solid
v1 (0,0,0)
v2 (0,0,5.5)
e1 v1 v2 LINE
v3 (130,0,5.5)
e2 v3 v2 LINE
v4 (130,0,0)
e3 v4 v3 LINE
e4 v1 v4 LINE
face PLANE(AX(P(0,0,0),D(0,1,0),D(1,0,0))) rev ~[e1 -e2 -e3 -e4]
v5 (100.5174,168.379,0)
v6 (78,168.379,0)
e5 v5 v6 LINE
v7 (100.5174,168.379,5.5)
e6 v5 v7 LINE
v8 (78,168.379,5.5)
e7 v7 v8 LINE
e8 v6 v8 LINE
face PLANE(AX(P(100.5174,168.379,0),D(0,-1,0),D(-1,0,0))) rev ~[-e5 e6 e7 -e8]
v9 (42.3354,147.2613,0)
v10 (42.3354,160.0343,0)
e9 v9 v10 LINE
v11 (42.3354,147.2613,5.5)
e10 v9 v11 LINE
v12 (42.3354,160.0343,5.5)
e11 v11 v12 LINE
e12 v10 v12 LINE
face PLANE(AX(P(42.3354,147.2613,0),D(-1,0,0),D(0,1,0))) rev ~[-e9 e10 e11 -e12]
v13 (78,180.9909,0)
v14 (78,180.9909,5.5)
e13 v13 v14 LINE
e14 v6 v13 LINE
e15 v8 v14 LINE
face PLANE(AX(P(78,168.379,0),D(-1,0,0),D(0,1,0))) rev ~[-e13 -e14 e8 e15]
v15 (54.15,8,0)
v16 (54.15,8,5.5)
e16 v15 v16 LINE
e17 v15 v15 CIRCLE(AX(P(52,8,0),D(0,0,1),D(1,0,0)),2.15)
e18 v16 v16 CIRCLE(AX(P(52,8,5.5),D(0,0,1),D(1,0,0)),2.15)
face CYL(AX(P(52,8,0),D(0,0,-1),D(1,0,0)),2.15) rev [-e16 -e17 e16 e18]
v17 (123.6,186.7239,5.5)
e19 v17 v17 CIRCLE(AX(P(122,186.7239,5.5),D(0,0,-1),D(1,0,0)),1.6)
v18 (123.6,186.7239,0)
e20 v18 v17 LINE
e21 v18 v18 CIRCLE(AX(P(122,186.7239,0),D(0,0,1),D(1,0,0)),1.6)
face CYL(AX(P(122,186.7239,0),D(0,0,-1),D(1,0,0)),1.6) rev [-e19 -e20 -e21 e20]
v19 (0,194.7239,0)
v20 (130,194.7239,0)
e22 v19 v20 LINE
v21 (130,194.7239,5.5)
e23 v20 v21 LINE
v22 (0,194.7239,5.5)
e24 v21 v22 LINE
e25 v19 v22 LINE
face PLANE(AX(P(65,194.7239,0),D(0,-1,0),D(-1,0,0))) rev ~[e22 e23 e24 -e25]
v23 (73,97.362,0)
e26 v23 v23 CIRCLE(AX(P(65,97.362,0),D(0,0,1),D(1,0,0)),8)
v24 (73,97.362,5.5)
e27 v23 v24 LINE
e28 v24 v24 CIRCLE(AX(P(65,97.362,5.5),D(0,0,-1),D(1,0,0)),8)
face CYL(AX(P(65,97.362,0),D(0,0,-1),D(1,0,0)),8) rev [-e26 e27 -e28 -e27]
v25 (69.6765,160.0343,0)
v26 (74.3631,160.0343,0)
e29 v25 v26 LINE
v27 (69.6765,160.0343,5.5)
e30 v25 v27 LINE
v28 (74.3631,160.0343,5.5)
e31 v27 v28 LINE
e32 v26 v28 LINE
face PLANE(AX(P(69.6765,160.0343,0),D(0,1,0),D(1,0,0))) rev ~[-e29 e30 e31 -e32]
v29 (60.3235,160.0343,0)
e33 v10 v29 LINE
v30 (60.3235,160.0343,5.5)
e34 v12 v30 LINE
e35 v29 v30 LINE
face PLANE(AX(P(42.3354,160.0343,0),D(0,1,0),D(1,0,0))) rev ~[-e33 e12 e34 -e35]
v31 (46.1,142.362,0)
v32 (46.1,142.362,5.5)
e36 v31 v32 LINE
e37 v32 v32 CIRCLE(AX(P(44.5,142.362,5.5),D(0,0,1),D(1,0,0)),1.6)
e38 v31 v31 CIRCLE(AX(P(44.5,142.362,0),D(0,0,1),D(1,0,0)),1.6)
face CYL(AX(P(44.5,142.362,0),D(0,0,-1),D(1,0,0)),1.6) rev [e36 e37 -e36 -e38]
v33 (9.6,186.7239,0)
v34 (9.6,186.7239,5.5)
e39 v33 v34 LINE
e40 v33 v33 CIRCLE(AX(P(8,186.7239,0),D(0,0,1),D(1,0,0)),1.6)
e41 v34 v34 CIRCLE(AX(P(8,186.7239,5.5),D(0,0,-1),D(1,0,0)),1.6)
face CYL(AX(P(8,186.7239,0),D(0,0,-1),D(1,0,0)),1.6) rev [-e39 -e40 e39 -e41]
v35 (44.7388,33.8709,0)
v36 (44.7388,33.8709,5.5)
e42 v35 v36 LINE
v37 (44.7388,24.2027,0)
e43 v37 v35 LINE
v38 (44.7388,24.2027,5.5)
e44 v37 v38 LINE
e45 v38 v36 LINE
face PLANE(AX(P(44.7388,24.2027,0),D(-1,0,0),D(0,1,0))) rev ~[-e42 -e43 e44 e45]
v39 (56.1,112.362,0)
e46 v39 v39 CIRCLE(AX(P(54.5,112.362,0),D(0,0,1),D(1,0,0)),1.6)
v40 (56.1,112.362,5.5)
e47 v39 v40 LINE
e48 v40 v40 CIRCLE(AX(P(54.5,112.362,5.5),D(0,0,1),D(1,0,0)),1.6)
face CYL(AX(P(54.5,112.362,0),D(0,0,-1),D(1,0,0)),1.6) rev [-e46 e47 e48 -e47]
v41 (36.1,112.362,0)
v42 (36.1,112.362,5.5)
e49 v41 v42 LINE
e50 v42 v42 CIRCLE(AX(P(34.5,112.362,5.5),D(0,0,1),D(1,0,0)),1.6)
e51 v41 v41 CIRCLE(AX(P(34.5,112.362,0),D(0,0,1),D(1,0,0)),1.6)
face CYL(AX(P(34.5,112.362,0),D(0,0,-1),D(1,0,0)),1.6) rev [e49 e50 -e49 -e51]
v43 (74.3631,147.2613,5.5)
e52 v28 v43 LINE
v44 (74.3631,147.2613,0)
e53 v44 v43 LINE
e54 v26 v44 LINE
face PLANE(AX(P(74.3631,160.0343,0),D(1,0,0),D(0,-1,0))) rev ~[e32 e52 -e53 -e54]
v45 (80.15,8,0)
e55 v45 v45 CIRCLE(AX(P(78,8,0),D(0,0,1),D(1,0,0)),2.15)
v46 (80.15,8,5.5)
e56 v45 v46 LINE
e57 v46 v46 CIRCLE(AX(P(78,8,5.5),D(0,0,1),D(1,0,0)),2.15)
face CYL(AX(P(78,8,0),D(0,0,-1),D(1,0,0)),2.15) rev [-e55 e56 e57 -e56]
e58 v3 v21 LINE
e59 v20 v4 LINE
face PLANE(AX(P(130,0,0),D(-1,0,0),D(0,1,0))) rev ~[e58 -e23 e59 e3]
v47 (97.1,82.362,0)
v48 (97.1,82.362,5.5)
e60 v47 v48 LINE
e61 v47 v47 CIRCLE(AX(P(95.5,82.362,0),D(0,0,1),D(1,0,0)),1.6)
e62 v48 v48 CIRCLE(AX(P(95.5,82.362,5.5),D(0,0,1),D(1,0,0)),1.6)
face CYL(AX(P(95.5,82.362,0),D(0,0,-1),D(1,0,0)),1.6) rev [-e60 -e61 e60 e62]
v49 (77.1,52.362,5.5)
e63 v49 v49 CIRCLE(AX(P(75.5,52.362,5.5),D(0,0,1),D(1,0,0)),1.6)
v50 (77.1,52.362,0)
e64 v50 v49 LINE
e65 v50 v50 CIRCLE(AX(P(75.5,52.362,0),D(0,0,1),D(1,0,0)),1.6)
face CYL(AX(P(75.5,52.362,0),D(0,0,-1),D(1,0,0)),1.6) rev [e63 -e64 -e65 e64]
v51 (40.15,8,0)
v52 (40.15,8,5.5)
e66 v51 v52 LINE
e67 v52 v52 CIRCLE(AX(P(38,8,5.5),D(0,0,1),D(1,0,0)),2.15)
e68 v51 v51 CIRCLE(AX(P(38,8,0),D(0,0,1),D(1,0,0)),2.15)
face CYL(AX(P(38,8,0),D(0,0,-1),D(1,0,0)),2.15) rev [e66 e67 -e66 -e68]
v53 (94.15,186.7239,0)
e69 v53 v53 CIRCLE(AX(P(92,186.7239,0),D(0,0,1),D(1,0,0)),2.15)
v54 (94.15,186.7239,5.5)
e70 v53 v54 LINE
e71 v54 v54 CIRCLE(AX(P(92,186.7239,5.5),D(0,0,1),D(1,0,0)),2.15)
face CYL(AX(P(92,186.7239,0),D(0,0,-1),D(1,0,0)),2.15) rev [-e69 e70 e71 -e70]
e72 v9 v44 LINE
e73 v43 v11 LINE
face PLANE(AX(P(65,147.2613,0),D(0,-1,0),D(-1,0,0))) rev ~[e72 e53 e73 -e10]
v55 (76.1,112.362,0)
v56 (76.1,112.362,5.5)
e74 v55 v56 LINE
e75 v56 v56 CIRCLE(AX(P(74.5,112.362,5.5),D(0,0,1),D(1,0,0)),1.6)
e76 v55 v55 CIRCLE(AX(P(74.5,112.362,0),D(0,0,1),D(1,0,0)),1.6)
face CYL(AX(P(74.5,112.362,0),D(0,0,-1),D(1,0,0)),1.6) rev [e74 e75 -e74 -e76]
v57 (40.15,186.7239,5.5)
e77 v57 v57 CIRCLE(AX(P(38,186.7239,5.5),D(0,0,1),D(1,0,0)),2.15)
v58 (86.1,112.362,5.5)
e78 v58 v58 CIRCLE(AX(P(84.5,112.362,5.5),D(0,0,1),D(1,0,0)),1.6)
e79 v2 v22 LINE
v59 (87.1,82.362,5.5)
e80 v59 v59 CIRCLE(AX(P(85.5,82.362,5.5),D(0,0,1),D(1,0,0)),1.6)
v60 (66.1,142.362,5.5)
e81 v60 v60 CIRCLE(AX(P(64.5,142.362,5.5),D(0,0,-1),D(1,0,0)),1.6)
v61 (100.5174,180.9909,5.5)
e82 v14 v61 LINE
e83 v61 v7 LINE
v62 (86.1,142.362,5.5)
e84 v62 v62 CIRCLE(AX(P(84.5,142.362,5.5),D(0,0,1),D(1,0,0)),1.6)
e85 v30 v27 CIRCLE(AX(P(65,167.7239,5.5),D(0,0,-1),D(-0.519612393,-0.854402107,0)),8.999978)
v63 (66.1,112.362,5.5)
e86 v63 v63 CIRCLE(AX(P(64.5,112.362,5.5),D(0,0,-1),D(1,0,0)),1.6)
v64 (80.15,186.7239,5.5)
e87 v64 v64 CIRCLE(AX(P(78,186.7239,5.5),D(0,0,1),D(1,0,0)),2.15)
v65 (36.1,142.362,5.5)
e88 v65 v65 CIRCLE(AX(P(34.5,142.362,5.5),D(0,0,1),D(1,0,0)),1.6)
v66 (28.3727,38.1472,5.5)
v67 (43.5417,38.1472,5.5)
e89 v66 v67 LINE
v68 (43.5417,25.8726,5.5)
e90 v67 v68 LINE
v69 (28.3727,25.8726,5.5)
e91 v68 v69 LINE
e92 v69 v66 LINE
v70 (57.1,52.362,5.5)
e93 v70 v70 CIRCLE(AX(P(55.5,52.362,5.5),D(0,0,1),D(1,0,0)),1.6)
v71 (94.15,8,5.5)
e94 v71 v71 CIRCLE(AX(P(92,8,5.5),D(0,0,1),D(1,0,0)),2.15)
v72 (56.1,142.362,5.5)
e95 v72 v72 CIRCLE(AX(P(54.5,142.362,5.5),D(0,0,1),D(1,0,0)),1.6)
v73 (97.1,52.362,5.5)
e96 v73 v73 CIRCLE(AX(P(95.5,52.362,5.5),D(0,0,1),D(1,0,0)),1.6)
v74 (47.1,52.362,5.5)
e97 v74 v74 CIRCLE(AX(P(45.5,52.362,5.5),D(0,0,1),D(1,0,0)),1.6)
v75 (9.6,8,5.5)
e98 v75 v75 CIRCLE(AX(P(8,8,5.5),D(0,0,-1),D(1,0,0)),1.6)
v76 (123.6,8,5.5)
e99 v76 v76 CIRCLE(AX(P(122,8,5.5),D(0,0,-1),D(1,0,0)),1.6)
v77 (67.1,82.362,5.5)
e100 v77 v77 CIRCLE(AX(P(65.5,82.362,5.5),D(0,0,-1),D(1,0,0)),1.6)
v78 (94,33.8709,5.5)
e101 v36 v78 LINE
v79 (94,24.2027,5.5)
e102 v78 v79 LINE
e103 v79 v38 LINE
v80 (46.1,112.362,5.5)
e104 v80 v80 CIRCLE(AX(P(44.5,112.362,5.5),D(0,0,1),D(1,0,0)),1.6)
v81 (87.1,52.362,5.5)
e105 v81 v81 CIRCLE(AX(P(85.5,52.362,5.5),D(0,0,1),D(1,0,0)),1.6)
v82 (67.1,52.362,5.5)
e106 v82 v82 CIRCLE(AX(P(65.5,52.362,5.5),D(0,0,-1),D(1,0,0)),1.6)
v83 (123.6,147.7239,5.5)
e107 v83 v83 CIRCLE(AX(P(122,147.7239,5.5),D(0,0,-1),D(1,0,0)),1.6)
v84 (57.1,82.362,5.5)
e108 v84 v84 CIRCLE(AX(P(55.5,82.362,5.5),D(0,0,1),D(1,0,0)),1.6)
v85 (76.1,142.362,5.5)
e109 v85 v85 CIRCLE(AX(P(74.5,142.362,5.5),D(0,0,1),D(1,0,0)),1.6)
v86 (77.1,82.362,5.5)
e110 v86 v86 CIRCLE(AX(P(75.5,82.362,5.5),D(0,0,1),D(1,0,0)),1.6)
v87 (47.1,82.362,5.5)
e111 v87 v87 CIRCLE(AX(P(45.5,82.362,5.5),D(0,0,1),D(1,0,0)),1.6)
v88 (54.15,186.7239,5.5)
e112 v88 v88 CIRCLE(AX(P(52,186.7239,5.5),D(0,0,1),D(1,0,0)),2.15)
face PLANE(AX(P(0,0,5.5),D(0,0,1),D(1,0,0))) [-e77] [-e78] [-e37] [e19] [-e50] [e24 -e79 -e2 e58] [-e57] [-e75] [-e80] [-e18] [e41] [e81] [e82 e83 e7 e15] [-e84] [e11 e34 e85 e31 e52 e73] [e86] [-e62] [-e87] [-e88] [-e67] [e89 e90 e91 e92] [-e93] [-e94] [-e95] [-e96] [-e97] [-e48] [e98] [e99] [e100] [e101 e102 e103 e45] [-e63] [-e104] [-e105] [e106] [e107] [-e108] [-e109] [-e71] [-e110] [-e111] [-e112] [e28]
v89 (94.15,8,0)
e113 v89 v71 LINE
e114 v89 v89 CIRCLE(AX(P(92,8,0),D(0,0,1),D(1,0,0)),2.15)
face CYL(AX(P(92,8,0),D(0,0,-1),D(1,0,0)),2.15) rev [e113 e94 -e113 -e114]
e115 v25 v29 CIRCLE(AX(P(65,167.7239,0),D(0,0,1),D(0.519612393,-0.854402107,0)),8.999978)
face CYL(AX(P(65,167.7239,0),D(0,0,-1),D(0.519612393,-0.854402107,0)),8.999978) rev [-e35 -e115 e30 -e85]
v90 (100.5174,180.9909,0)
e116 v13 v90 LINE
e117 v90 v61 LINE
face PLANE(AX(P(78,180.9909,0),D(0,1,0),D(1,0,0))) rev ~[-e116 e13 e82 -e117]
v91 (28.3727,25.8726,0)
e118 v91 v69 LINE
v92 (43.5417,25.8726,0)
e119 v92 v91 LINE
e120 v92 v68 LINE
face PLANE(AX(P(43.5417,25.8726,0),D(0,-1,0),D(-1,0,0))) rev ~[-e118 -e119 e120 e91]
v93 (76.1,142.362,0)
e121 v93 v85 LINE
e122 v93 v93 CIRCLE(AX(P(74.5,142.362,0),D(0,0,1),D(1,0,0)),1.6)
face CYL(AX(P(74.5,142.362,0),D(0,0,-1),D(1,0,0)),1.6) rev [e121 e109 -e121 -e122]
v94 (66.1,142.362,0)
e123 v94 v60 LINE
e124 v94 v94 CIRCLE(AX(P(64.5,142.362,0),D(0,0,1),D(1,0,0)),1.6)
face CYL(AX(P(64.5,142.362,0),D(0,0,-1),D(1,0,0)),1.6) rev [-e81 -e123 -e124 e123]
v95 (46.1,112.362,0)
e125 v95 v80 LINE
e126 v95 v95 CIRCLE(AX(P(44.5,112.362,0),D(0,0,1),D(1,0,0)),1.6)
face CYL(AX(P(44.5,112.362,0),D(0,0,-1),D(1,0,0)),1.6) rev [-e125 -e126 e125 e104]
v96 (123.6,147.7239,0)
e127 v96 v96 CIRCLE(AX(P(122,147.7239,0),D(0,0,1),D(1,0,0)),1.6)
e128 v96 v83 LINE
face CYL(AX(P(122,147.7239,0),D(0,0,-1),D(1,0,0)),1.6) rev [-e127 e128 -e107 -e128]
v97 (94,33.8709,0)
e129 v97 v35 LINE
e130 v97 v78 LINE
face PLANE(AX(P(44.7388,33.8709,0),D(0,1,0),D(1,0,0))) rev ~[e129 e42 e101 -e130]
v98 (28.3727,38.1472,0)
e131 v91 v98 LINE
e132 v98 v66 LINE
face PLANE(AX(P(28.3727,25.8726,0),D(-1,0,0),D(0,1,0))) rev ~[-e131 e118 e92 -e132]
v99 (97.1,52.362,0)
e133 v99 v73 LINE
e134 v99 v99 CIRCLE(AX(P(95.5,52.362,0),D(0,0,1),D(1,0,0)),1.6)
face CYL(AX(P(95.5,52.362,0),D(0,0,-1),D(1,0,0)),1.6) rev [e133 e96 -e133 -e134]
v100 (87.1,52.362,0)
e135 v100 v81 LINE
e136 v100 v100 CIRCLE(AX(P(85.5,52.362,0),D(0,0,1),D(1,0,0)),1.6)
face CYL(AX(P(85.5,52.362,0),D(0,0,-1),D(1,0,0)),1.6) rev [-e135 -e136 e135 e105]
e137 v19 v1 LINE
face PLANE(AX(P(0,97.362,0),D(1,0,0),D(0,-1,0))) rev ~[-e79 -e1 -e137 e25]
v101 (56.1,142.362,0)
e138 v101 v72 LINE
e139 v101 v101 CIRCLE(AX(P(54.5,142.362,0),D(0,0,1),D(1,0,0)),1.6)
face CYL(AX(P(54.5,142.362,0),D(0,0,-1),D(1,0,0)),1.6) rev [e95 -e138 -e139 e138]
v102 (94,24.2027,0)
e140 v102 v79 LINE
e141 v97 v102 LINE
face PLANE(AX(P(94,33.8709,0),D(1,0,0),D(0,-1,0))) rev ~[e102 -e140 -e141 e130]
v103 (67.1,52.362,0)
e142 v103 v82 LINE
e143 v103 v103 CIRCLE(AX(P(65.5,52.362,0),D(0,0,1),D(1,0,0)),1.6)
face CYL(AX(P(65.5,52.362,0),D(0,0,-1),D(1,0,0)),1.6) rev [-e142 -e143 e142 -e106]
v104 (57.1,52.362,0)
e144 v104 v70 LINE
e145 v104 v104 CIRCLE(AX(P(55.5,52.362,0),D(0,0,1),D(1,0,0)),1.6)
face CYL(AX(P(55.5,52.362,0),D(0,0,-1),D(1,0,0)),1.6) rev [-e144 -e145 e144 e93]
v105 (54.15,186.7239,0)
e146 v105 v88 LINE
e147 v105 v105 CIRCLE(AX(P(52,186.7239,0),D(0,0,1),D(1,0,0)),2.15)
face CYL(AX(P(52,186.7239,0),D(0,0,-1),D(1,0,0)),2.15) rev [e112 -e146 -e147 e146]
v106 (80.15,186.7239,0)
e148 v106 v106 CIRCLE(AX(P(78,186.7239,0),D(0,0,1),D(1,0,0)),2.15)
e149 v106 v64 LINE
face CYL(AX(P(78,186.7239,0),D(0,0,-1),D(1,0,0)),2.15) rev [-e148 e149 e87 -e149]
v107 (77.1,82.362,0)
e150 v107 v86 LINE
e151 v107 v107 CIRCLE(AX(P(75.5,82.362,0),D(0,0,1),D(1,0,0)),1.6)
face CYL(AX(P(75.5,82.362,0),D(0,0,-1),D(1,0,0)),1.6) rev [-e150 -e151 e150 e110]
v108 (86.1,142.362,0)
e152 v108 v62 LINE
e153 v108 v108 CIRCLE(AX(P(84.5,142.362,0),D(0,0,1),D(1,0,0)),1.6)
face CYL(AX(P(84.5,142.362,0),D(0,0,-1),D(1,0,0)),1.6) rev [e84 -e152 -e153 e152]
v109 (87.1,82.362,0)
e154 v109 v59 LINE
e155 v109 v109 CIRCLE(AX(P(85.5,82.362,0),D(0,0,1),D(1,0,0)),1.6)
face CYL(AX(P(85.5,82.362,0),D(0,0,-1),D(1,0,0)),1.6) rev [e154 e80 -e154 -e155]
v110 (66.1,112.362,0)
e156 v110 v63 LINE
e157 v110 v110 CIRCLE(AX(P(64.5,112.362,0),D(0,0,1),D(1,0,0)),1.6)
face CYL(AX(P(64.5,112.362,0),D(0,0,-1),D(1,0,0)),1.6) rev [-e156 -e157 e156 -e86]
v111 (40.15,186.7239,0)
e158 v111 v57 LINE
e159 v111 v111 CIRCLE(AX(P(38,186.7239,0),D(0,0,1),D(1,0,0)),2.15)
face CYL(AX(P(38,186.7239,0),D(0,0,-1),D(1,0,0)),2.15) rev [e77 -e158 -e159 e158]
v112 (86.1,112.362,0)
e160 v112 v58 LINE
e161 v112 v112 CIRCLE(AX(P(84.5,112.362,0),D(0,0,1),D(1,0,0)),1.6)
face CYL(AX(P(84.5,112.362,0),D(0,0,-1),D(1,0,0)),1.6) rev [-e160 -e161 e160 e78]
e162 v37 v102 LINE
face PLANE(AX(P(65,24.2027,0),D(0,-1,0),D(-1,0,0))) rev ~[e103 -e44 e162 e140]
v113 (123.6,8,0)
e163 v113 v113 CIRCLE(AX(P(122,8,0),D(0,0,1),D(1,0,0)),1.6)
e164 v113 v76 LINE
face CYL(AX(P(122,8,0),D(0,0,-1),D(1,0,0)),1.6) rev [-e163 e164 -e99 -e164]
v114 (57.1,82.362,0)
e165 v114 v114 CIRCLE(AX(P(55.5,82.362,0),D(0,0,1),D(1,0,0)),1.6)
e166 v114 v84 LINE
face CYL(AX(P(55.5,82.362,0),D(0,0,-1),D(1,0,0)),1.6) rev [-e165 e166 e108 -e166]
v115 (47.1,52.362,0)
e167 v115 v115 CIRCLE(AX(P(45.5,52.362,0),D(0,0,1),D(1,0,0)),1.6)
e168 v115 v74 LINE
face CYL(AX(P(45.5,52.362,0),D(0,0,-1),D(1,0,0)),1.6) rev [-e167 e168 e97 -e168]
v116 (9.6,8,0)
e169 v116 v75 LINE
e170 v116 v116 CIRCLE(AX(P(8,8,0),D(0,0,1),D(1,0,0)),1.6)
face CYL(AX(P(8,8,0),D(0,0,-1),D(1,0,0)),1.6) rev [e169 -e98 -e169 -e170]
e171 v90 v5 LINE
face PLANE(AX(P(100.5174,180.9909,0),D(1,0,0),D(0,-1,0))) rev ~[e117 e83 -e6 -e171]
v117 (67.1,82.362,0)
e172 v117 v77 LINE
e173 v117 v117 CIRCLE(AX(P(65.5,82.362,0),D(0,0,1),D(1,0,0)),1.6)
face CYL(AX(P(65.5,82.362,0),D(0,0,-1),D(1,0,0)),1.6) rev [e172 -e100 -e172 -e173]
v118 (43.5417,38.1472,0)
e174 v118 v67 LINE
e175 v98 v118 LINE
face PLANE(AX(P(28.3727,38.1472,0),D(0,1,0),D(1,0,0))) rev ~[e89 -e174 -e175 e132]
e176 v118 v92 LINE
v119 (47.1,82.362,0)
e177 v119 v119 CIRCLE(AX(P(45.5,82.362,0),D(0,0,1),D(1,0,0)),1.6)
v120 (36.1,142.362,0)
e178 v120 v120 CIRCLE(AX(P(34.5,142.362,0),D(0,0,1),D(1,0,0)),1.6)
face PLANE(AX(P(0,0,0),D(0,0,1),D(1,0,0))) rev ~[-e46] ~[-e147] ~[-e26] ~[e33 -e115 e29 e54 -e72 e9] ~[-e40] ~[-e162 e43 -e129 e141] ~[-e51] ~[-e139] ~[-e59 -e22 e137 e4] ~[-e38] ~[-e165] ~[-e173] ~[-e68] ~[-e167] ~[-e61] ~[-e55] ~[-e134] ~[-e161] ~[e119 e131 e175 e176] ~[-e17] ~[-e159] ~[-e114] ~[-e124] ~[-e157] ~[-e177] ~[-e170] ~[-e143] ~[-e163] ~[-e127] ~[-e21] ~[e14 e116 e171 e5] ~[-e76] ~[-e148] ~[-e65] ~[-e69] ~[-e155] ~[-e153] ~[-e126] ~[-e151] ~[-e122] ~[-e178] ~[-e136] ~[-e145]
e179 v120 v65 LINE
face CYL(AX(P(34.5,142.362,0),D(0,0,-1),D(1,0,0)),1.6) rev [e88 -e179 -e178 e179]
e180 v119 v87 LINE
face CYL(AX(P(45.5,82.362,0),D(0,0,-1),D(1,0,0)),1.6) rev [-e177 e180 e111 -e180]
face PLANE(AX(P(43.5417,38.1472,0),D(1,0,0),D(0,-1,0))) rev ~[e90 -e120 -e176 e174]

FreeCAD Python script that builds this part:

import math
import FreeCAD as App
import Part
import Sketcher
from FreeCAD import Vector
Q = App.Units.Quantity

doc = App.newDocument("Part")
body = doc.addObject("PartDesign::Body", "Body")

# Sketch on XY plane
sketch1 = body.newObject("Sketcher::SketchObject", "Sketch")
sketch1.AttachmentSupport = (doc.getObject("XY_Plane"), [""])
sketch1.MapMode = "FlatFace"
sketch1.addGeometry([
    Part.LineSegment(Vector(0, 0, 0), Vector(130, 0, 0)),  # 0
    Part.LineSegment(Vector(130, 0, 0), Vector(130, 194.7, 0)),  # 1
    Part.LineSegment(Vector(130, 194.7, 0), Vector(0, 194.7, 0)),  # 2
    Part.LineSegment(Vector(0, 194.7, 0), Vector(0, 0, 0)),  # 3
    Part.Circle(Vector(65, 97.4, 0), Vector(0, 0, 1), 8),  # 4
    Part.Circle(Vector(65.5, 82.4, 0), Vector(0, 0, 1), 1.6),  # 5
    Part.Circle(Vector(65.5, 52.4, 0), Vector(0, 0, 1), 1.6),  # 6
    Part.LineSegment(Vector(44.7, 33.9, 0), Vector(94, 33.9, 0)),  # 7
    Part.LineSegment(Vector(94, 33.9, 0), Vector(94, 24.2, 0)),  # 8
    Part.LineSegment(Vector(94, 24.2, 0), Vector(44.7, 24.2, 0)),  # 9
    Part.LineSegment(Vector(44.7, 24.2, 0), Vector(44.7, 33.9, 0)),  # 10
    Part.Circle(Vector(8, 8, 0), Vector(0, 0, 1), 1.6),  # 11
    Part.Circle(Vector(38, 8, 0), Vector(0, 0, 1), 2.1),  # 12
    Part.Circle(Vector(52, 8, 0), Vector(0, 0, 1), 2.1),  # 13
    Part.LineSegment(Vector(28.4, 25.9, 0), Vector(28.4, 38.1, 0)),  # 14
    Part.LineSegment(Vector(28.4, 38.1, 0), Vector(43.5, 38.1, 0)),  # 15
    Part.LineSegment(Vector(43.5, 38.1, 0), Vector(43.5, 25.9, 0)),  # 16
    Part.LineSegment(Vector(43.5, 25.9, 0), Vector(28.4, 25.9, 0)),  # 17
    Part.Circle(Vector(45.5, 52.4, 0), Vector(0, 0, 1), 1.6),  # 18
    Part.Circle(Vector(55.5, 52.4, 0), Vector(0, 0, 1), 1.6),  # 19
    Part.Circle(Vector(45.5, 82.4, 0), Vector(0, 0, 1), 1.6),  # 20
    Part.Circle(Vector(55.5, 82.4, 0), Vector(0, 0, 1), 1.6),  # 21
    Part.ArcOfCircle(Part.Circle(Vector(65, 167.7, 0), Vector(0, 0, 1), 9), math.radians(-59), math.radians(239)),  # 22
    Part.LineSegment(Vector(69.7, 160, 0), Vector(74.4, 160, 0)),  # 23
    Part.LineSegment(Vector(74.4, 160, 0), Vector(74.4, 147.3, 0)),  # 24
    Part.LineSegment(Vector(74.4, 147.3, 0), Vector(42.3, 147.3, 0)),  # 25
    Part.LineSegment(Vector(42.3, 147.3, 0), Vector(42.3, 160, 0)),  # 26
    Part.LineSegment(Vector(42.3, 160, 0), Vector(60.3, 160, 0)),  # 27
    Part.Circle(Vector(64.5, 142.4, 0), Vector(0, 0, 1), 1.6),  # 28
    Part.Circle(Vector(64.5, 112.4, 0), Vector(0, 0, 1), 1.6),  # 29
    Part.Circle(Vector(52, 186.7, 0), Vector(0, 0, 1), 2.1),  # 30
    Part.Circle(Vector(34.5, 112.4, 0), Vector(0, 0, 1), 1.6),  # 31
    Part.Circle(Vector(44.5, 112.4, 0), Vector(0, 0, 1), 1.6),  # 32
    Part.Circle(Vector(54.5, 112.4, 0), Vector(0, 0, 1), 1.6),  # 33
    Part.Circle(Vector(34.5, 142.4, 0), Vector(0, 0, 1), 1.6),  # 34
    Part.Circle(Vector(44.5, 142.4, 0), Vector(0, 0, 1), 1.6),  # 35
    Part.Circle(Vector(54.5, 142.4, 0), Vector(0, 0, 1), 1.6),  # 36
    Part.Circle(Vector(8, 186.7, 0), Vector(0, 0, 1), 1.6),  # 37
    Part.Circle(Vector(38, 186.7, 0), Vector(0, 0, 1), 2.1),  # 38
    Part.Circle(Vector(95.5, 52.4, 0), Vector(0, 0, 1), 1.6),  # 39
    Part.Circle(Vector(75.5, 82.4, 0), Vector(0, 0, 1), 1.6),  # 40
    Part.Circle(Vector(85.5, 82.4, 0), Vector(0, 0, 1), 1.6),  # 41
    Part.Circle(Vector(95.5, 82.4, 0), Vector(0, 0, 1), 1.6),  # 42
    Part.Circle(Vector(78, 8, 0), Vector(0, 0, 1), 2.1),  # 43
    Part.Circle(Vector(92, 8, 0), Vector(0, 0, 1), 2.1),  # 44
    Part.Circle(Vector(122, 8, 0), Vector(0, 0, 1), 1.6),  # 45
    Part.Circle(Vector(75.5, 52.4, 0), Vector(0, 0, 1), 1.6),  # 46
    Part.Circle(Vector(85.5, 52.4, 0), Vector(0, 0, 1), 1.6),  # 47
    Part.Circle(Vector(122, 147.7, 0), Vector(0, 0, 1), 1.6),  # 48
    Part.Circle(Vector(122, 186.7, 0), Vector(0, 0, 1), 1.6),  # 49
    Part.Circle(Vector(74.5, 112.4, 0), Vector(0, 0, 1), 1.6),  # 50
    Part.Circle(Vector(84.5, 112.4, 0), Vector(0, 0, 1), 1.6),  # 51
    Part.Circle(Vector(74.5, 142.4, 0), Vector(0, 0, 1), 1.6),  # 52
    Part.Circle(Vector(84.5, 142.4, 0), Vector(0, 0, 1), 1.6),  # 53
    Part.Circle(Vector(78, 186.7, 0), Vector(0, 0, 1), 2.1),  # 54
    Part.LineSegment(Vector(78, 168.4, 0), Vector(78, 181, 0)),  # 55
    Part.LineSegment(Vector(78, 181, 0), Vector(100.5, 181, 0)),  # 56
    Part.LineSegment(Vector(100.5, 181, 0), Vector(100.5, 168.4, 0)),  # 57
    Part.LineSegment(Vector(100.5, 168.4, 0), Vector(78, 168.4, 0)),  # 58
    Part.Circle(Vector(92, 186.7, 0), Vector(0, 0, 1), 2.1),  # 59
], False)
sketch1.addConstraint([
    Sketcher.Constraint("Coincident", 0, 2, 1, 1),
    Sketcher.Constraint("Coincident", 1, 2, 2, 1),
    Sketcher.Constraint("Coincident", 2, 2, 3, 1),
    Sketcher.Constraint("Coincident", 3, 2, 0, 1),
    Sketcher.Constraint("Coincident", 7, 2, 8, 1),
    Sketcher.Constraint("Coincident", 8, 2, 9, 1),
    Sketcher.Constraint("Coincident", 9, 2, 10, 1),
    Sketcher.Constraint("Coincident", 10, 2, 7, 1),
    Sketcher.Constraint("Coincident", 14, 2, 15, 1),
    Sketcher.Constraint("Coincident", 15, 2, 16, 1),
    Sketcher.Constraint("Coincident", 16, 2, 17, 1),
    Sketcher.Constraint("Coincident", 17, 2, 14, 1),
    Sketcher.Constraint("Coincident", 22, 1, 23, 1),
    Sketcher.Constraint("Coincident", 23, 2, 24, 1),
    Sketcher.Constraint("Coincident", 24, 2, 25, 1),
    Sketcher.Constraint("Coincident", 25, 2, 26, 1),
    Sketcher.Constraint("Coincident", 26, 2, 27, 1),
    Sketcher.Constraint("Coincident", 27, 2, 22, 2),
    Sketcher.Constraint("Coincident", 55, 2, 56, 1),
    Sketcher.Constraint("Coincident", 56, 2, 57, 1),
    Sketcher.Constraint("Coincident", 57, 2, 58, 1),
    Sketcher.Constraint("Coincident", 58, 2, 55, 1),
    Sketcher.Constraint("Horizontal", 0),
    Sketcher.Constraint("Vertical", 1),
    Sketcher.Constraint("Horizontal", 2),
    Sketcher.Constraint("Vertical", 3),
    Sketcher.Constraint("Horizontal", 7),
    Sketcher.Constraint("Vertical", 8),
    Sketcher.Constraint("Horizontal", 9),
    Sketcher.Constraint("Vertical", 10),
    Sketcher.Constraint("Vertical", 14),
    Sketcher.Constraint("Horizontal", 15),
    Sketcher.Constraint("Vertical", 16),
    Sketcher.Constraint("Horizontal", 17),
    Sketcher.Constraint("Horizontal", 23),
    Sketcher.Constraint("Vertical", 24),
    Sketcher.Constraint("Horizontal", 25),
    Sketcher.Constraint("Vertical", 26),
    Sketcher.Constraint("Horizontal", 27),
    Sketcher.Constraint("Vertical", 55),
    Sketcher.Constraint("Horizontal", 56),
    Sketcher.Constraint("Vertical", 57),
    Sketcher.Constraint("Horizontal", 58),
    Sketcher.Constraint("Coincident", 3, 2, -1, 1),
    Sketcher.Constraint("Equal", 5, 6),
    Sketcher.Constraint("Equal", 6, 11),
    Sketcher.Constraint("Equal", 12, 13),
    Sketcher.Constraint("Equal", 11, 18),
    Sketcher.Constraint("Equal", 18, 19),
    Sketcher.Constraint("Equal", 19, 20),
    Sketcher.Constraint("Equal", 20, 21),
    Sketcher.Constraint("Equal", 21, 28),
    Sketcher.Constraint("Equal", 28, 29),
    Sketcher.Constraint("Equal", 13, 30),
    Sketcher.Constraint("Equal", 29, 31),
    Sketcher.Constraint("Equal", 31, 32),
    Sketcher.Constraint("Equal", 32, 33),
    Sketcher.Constraint("Equal", 33, 34),
    Sketcher.Constraint("Equal", 34, 35),
    Sketcher.Constraint("Equal", 35, 36),
    Sketcher.Constraint("Equal", 36, 37),
    Sketcher.Constraint("Equal", 30, 38),
    Sketcher.Constraint("Equal", 37, 39),
    Sketcher.Constraint("Equal", 39, 40),
    Sketcher.Constraint("Equal", 40, 41),
    Sketcher.Constraint("Equal", 41, 42),
    Sketcher.Constraint("Equal", 38, 43),
    Sketcher.Constraint("Equal", 43, 44),
    Sketcher.Constraint("Equal", 42, 45),
    Sketcher.Constraint("Equal", 45, 46),
    Sketcher.Constraint("Equal", 46, 47),
    Sketcher.Constraint("Equal", 47, 48),
    Sketcher.Constraint("Equal", 48, 49),
    Sketcher.Constraint("Equal", 49, 50),
    Sketcher.Constraint("Equal", 50, 51),
    Sketcher.Constraint("Equal", 51, 52),
    Sketcher.Constraint("Equal", 52, 53),
    Sketcher.Constraint("Equal", 44, 54),
    Sketcher.Constraint("Equal", 54, 59),
    Sketcher.Constraint("Horizontal", 11, 3, 12, 3),
    Sketcher.Constraint("Horizontal", 12, 3, 13, 3),
    Sketcher.Constraint("Horizontal", 6, 3, 18, 3),
    Sketcher.Constraint("Horizontal", 18, 3, 19, 3),
    Sketcher.Constraint("Horizontal", 5, 3, 20, 3),
    Sketcher.Constraint("Horizontal", 20, 3, 21, 3),
    Sketcher.Constraint("Horizontal", 29, 3, 31, 3),
    Sketcher.Constraint("Horizontal", 31, 3, 32, 3),
    Sketcher.Constraint("Horizontal", 32, 3, 33, 3),
    Sketcher.Constraint("Horizontal", 28, 3, 34, 3),
    Sketcher.Constraint("Horizontal", 34, 3, 35, 3),
    Sketcher.Constraint("Horizontal", 35, 3, 36, 3),
    Sketcher.Constraint("Horizontal", 30, 3, 37, 3),
    Sketcher.Constraint("Horizontal", 37, 3, 38, 3),
    Sketcher.Constraint("Horizontal", 19, 3, 39, 3),
    Sketcher.Constraint("Horizontal", 21, 3, 40, 3),
    Sketcher.Constraint("Horizontal", 40, 3, 41, 3),
    Sketcher.Constraint("Horizontal", 41, 3, 42, 3),
    Sketcher.Constraint("Horizontal", 13, 3, 43, 3),
    Sketcher.Constraint("Horizontal", 43, 3, 44, 3),
    Sketcher.Constraint("Horizontal", 44, 3, 45, 3),
    Sketcher.Constraint("Horizontal", 39, 3, 46, 3),
    Sketcher.Constraint("Horizontal", 46, 3, 47, 3),
    Sketcher.Constraint("Horizontal", 38, 3, 49, 3),
    Sketcher.Constraint("Horizontal", 33, 3, 50, 3),
    Sketcher.Constraint("Horizontal", 50, 3, 51, 3),
    Sketcher.Constraint("Horizontal", 36, 3, 52, 3),
    Sketcher.Constraint("Horizontal", 52, 3, 53, 3),
    Sketcher.Constraint("Horizontal", 49, 3, 54, 3),
    Sketcher.Constraint("Horizontal", 54, 3, 59, 3),
    Sketcher.Constraint("Horizontal", 23, 2, 26, 2),
    Sketcher.Constraint("Vertical", 5, 3, 6, 3),
    Sketcher.Constraint("Vertical", 18, 3, 20, 3),
    Sketcher.Constraint("Vertical", 19, 3, 21, 3),
    Sketcher.Constraint("Vertical", 4, 3, 22, 3),
    Sketcher.Constraint("Vertical", 28, 3, 29, 3),
    Sketcher.Constraint("Vertical", 13, 3, 30, 3),
    Sketcher.Constraint("Vertical", 31, 3, 34, 3),
    Sketcher.Constraint("Vertical", 32, 3, 35, 3),
    Sketcher.Constraint("Vertical", 33, 3, 36, 3),
    Sketcher.Constraint("Vertical", 11, 3, 37, 3),
    Sketcher.Constraint("Vertical", 12, 3, 38, 3),
    Sketcher.Constraint("Vertical", 39, 3, 42, 3),
    Sketcher.Constraint("Vertical", 40, 3, 46, 3),
    Sketcher.Constraint("Vertical", 41, 3, 47, 3),
    Sketcher.Constraint("Vertical", 45, 3, 48, 3),
    Sketcher.Constraint("Vertical", 48, 3, 49, 3),
    Sketcher.Constraint("Vertical", 50, 3, 52, 3),
    Sketcher.Constraint("Vertical", 51, 3, 53, 3),
    Sketcher.Constraint("Vertical", 43, 3, 54, 3),
    Sketcher.Constraint("Vertical", 44, 3, 59, 3),
    Sketcher.Constraint("Vertical", 54, 3, 55, 2),
    Sketcher.Constraint("Diameter", 4, Q("16 mm")),
    Sketcher.Constraint("Radius", 22, Q("9 mm")),
    Sketcher.Constraint("Diameter", 5, Q("3.2 mm")),
    Sketcher.Constraint("Diameter", 12, Q("4.3 mm")),
    Sketcher.Constraint("DistanceX", 0, 1, 0, 2, Q("130 mm")),
    Sketcher.Constraint("DistanceX", -1, 1, 4, 3, Q("65 mm")),
    Sketcher.Constraint("DistanceX", -1, 1, 11, 3, Q("8 mm")),
    Sketcher.Constraint("DistanceY", -1, 1, 11, 3, Q("8 mm")),
    Sketcher.Constraint("DistanceX", -1, 1, 12, 3, Q("38 mm")),
    Sketcher.Constraint("DistanceX", -1, 1, 13, 3, Q("52 mm")),
    Sketcher.Constraint("DistanceX", -1, 1, 43, 3, Q("78 mm")),
    Sketcher.Constraint("DistanceX", -1, 1, 44, 3, Q("92 mm")),
    Sketcher.Constraint("DistanceX", -1, 1, 45, 3, Q("122 mm")),
    Sketcher.Constraint("DistanceX", -1, 1, 7, 2, Q("94 mm")),
    Sketcher.Constraint("DistanceX", -1, 1, 5, 3, Q("65.5 mm")),
    Sketcher.Constraint("DistanceX", -1, 1, 18, 3, Q("45.5 mm")),
    Sketcher.Constraint("DistanceX", -1, 1, 19, 3, Q("55.5 mm")),
    Sketcher.Constraint("DistanceX", -1, 1, 28, 3, Q("64.5 mm")),
    Sketcher.Constraint("DistanceX", -1, 1, 31, 3, Q("34.5 mm")),
    Sketcher.Constraint("DistanceX", -1, 1, 32, 3, Q("44.5 mm")),
    Sketcher.Constraint("DistanceX", -1, 1, 33, 3, Q("54.5 mm")),
    Sketcher.Constraint("DistanceX", -1, 1, 39, 3, Q("95.5 mm")),
    Sketcher.Constraint("DistanceX", -1, 1, 40, 3, Q("75.5 mm")),
    Sketcher.Constraint("DistanceX", -1, 1, 41, 3, Q("85.5 mm")),
    Sketcher.Constraint("DistanceX", -1, 1, 50, 3, Q("74.5 mm")),
    Sketcher.Constraint("DistanceX", -1, 1, 51, 3, Q("84.5 mm")),
    Sketcher.Constraint("DistanceX", 15, 1, 15, 2, Q("15.169 mm")),
    Sketcher.Constraint("DistanceX", 27, 1, 27, 2, Q("17.988 mm")),
    Sketcher.Constraint("DistanceY", 1, 1, 1, 2, Q("194.724 mm")),
    Sketcher.Constraint("DistanceY", 24, 2, 24, 1, Q("12.773 mm")),
    Sketcher.Constraint("DistanceY", 55, 1, 55, 2, Q("12.612 mm")),
    Sketcher.Constraint("DistanceX", 7, 1, 7, 2, Q("49.2612 mm")),
    Sketcher.Constraint("DistanceX", 23, 1, 23, 2, Q("4.6866 mm")),
    Sketcher.Constraint("DistanceX", 25, 2, 25, 1, Q("32.0277 mm")),
    Sketcher.Constraint("DistanceX", 56, 1, 56, 2, Q("22.5174 mm")),
    Sketcher.Constraint("DistanceY", 8, 2, 8, 1, Q("9.6682 mm")),
    Sketcher.Constraint("DistanceY", 14, 1, 14, 2, Q("12.2746 mm")),
    Sketcher.Constraint("DistanceY", -1, 1, 4, 3, Q("97.362 mm")),
    Sketcher.Constraint("DistanceY", -1, 1, 5, 3, Q("82.362 mm")),
    Sketcher.Constraint("DistanceY", -1, 1, 6, 3, Q("52.362 mm")),
    Sketcher.Constraint("DistanceY", -1, 1, 22, 3, Q("167.724 mm")),
    Sketcher.Constraint("DistanceY", -1, 1, 28, 3, Q("142.362 mm")),
    Sketcher.Constraint("DistanceY", -1, 1, 29, 3, Q("112.362 mm")),
    Sketcher.Constraint("DistanceY", -1, 1, 30, 3, Q("186.724 mm")),
    Sketcher.Constraint("DistanceY", -1, 1, 48, 3, Q("147.724 mm")),
    Sketcher.Constraint("DistanceY", -1, 1, 7, 2, Q("33.871 mm")),
    Sketcher.Constraint("DistanceY", -1, 1, 55, 2, Q("180.991 mm")),
    Sketcher.Constraint("DistanceX", -1, 1, 14, 2, Q("28.3727 mm")),
    Sketcher.Constraint("DistanceY", -1, 1, 14, 2, Q("38.1472 mm")),
])
pad1 = body.newObject("PartDesign::Pad", "Pad")
pad1.Profile = sketch1
pad1.Length = 5.5

doc.recompute()
